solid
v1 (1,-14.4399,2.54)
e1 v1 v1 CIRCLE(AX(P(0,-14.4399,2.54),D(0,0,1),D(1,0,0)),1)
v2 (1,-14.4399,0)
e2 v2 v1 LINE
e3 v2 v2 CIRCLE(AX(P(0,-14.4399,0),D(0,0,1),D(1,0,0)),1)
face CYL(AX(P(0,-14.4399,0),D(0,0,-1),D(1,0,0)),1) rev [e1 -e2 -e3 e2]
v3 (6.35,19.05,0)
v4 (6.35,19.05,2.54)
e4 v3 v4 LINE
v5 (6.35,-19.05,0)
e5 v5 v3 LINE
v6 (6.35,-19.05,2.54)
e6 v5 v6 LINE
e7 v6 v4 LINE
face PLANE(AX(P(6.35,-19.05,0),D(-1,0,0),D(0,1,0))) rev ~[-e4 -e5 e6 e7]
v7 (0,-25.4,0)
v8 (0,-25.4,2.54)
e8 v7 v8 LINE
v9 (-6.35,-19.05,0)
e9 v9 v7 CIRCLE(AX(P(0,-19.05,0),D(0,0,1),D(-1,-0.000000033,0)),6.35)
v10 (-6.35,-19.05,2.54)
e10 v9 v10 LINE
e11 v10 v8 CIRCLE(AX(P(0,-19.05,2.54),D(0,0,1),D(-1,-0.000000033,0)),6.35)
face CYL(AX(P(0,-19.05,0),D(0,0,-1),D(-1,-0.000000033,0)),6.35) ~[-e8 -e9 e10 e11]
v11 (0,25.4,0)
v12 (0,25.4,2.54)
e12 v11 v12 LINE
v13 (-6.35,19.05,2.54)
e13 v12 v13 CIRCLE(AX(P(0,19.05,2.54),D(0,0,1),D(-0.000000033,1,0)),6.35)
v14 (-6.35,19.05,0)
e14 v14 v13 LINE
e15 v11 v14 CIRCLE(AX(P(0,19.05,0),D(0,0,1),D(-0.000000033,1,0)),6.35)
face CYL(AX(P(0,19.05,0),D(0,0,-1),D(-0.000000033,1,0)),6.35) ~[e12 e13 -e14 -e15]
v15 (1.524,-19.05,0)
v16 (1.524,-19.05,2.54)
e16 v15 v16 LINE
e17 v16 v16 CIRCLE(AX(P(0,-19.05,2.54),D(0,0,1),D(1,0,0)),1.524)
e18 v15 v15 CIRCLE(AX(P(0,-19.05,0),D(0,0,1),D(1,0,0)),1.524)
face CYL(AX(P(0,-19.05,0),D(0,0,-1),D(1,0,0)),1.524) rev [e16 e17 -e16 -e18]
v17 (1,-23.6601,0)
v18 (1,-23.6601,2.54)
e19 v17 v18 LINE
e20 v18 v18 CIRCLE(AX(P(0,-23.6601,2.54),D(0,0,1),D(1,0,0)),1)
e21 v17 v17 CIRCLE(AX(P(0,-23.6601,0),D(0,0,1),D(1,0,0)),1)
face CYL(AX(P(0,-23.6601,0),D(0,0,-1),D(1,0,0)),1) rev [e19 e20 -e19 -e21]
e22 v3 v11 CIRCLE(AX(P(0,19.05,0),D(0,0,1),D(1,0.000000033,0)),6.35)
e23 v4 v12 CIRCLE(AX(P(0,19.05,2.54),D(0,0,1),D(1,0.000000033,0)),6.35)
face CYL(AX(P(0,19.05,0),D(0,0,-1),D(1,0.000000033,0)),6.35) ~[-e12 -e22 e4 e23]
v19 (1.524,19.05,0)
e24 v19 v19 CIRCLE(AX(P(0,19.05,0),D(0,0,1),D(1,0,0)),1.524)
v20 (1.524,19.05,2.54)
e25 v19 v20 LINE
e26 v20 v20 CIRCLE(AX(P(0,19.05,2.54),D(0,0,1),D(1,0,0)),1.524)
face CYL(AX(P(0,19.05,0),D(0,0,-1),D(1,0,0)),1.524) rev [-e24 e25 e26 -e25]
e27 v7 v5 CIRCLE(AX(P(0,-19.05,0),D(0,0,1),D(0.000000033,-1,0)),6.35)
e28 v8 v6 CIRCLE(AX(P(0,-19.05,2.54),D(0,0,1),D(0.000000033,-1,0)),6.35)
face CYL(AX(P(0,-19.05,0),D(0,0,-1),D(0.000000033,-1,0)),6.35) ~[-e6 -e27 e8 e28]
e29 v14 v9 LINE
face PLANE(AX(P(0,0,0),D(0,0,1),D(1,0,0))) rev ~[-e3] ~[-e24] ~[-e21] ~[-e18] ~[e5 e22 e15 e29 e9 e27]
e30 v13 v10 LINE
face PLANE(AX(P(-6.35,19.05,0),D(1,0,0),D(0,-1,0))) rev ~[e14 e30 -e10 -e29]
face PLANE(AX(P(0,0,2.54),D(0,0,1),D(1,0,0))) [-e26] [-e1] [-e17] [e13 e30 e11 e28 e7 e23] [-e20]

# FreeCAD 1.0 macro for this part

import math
import FreeCAD as App
import Part
import Sketcher

V = App.Vector
Q = App.Units.Quantity

doc = App.newDocument("Part")
body = doc.addObject("PartDesign::Body", "Body")

sketch1 = body.newObject("Sketcher::SketchObject", "Sketch")
sketch1.AttachmentSupport = (doc.getObject("XY_Plane"), [""])
sketch1.MapMode = "FlatFace"
sketch1.addGeometry(Part.LineSegment(V(6.3, -19.1, 0), V(6.3, 19.1, 0)), False)
sketch1.addGeometry(Part.ArcOfCircle(Part.Circle(V(0, 19, 0), V(0, 0, 1), 6.4), math.radians(0), math.radians(90)), False)
sketch1.addGeometry(Part.ArcOfCircle(Part.Circle(V(0, 19, 0), V(0, 0, 1), 6.4), math.radians(90), math.radians(180)), False)
sketch1.addGeometry(Part.LineSegment(V(-6.3, 19.1, 0), V(-6.3, -19.1, 0)), False)
sketch1.addGeometry(Part.ArcOfCircle(Part.Circle(V(0, -19, 0), V(0, 0, 1), 6.4), math.radians(-180), math.radians(-90)), False)
sketch1.addGeometry(Part.ArcOfCircle(Part.Circle(V(0, -19, 0), V(0, 0, 1), 6.4), math.radians(-90), math.radians(0)), False)
sketch1.addGeometry(Part.Circle(V(0, -23.7, 0), V(0, 0, 1), 1), False)
sketch1.addGeometry(Part.Circle(V(0, -19.1, 0), V(0, 0, 1), 1.5), False)
sketch1.addGeometry(Part.Circle(V(0, -14.4, 0), V(0, 0, 1), 1), False)
sketch1.addGeometry(Part.Circle(V(0, 19.1, 0), V(0, 0, 1), 1.5), False)
sketch1.addConstraint(Sketcher.Constraint("Tangent", 0, 2, 1, 1))
sketch1.addConstraint(Sketcher.Constraint("Tangent", 1, 2, 2, 1))
sketch1.addConstraint(Sketcher.Constraint("Tangent", 2, 2, 3, 1))
sketch1.addConstraint(Sketcher.Constraint("Tangent", 3, 2, 4, 1))
sketch1.addConstraint(Sketcher.Constraint("Tangent", 4, 2, 5, 1))
sketch1.addConstraint(Sketcher.Constraint("Tangent", 5, 2, 0, 1))
sketch1.addConstraint(Sketcher.Constraint("Vertical", 0))
sketch1.addConstraint(Sketcher.Constraint("Vertical", 3))
sketch1.addConstraint(Sketcher.Constraint("Coincident", 7, 3, 4, 3))
sketch1.addConstraint(Sketcher.Constraint("Coincident", 9, 3, 1, 3))
sketch1.addConstraint(Sketcher.Constraint("Equal", 1, 2))
sketch1.addConstraint(Sketcher.Constraint("Equal", 2, 4))
sketch1.addConstraint(Sketcher.Constraint("Equal", 6, 8))
sketch1.addConstraint(Sketcher.Constraint("Equal", 7, 9))
sketch1.addConstraint(Sketcher.Constraint("Symmetric", 1, 3, 4, 3, -1, 1))
sketch1.addConstraint(Sketcher.Constraint("PointOnObject", 6, 3, -2))
sketch1.addConstraint(Sketcher.Constraint("PointOnObject", 8, 3, -2))
sketch1.addConstraint(Sketcher.Constraint("PointOnObject", 1, 2, -2))
sketch1.addConstraint(Sketcher.Constraint("PointOnObject", 4, 2, -2))
sketch1.addConstraint(Sketcher.Constraint("Diameter", 7, Q("0.12 in")))
sketch1.addConstraint(Sketcher.Constraint("Radius", 1, Q("0.25 in")))
sketch1.addConstraint(Sketcher.Constraint("DistanceY", 0, 1, 0, 2, Q("1.5 in")))
sketch1.addConstraint(Sketcher.Constraint("Diameter", 6, 2.0))
sketch1.addConstraint(Sketcher.Constraint("DistanceY", 6, 3, 8, 3, Q("0.363 in")))
sketch1.addConstraint(Sketcher.Constraint("DistanceY", 6, 3, -1, 1, Q("0.9315 in")))
pad1 = body.newObject("PartDesign::Pad", "Pad")
pad1.Profile = sketch1
pad1.Length = Q("0.1 in")

doc.recompute()
